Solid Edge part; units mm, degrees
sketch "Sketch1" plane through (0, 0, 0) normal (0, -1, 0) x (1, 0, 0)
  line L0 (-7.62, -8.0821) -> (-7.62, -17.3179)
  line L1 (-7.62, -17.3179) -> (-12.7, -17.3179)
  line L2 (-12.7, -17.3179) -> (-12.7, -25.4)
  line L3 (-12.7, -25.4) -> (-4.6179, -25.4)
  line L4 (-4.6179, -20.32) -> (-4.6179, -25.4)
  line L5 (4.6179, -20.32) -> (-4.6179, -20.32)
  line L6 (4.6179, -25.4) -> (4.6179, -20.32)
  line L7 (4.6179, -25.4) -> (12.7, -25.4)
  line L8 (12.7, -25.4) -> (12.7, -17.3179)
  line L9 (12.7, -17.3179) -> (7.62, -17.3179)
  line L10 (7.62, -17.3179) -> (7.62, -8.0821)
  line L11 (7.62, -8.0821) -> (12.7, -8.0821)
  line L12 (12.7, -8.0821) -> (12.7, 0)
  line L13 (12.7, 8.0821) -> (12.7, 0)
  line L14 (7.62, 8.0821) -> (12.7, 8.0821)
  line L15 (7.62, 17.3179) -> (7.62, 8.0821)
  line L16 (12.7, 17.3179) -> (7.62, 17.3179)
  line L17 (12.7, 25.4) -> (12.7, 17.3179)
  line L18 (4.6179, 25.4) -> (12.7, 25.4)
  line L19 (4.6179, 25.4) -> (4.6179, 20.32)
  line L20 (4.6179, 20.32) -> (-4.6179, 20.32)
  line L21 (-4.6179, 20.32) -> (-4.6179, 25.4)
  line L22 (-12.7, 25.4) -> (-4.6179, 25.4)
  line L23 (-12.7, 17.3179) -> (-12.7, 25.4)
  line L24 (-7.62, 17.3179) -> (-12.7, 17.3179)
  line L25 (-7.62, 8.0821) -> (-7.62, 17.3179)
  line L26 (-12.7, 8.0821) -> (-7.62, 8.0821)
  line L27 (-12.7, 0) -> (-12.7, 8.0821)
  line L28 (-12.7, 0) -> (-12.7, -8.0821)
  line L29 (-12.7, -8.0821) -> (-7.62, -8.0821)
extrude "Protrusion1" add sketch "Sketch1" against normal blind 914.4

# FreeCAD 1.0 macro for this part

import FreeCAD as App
import Part
import Sketcher

V = App.Vector
Q = App.Units.Quantity

doc = App.newDocument("Part")
params = doc.addObject("Spreadsheet::Sheet", "Params")
for row, (alias, value) in enumerate([
    ("sketch1_width", "0.2 in"),
    ("pad1_length", "36 in"),
], start=1):
    params.set(f"A{row}", alias)
    params.set(f"B{row}", "=" + value)
    params.setAlias(f"B{row}", alias)

body = doc.addObject("PartDesign::Body", "Body")

# Sketch on XZ plane
sketch1 = body.newObject("Sketcher::SketchObject", "Sketch")
sketch1.AttachmentSupport = (doc.getObject("XZ_Plane"), [""])
sketch1.MapMode = "FlatFace"
sketch1.addGeometry(Part.LineSegment(V(-13, -8, 0), V(-8, -8, 0)), False)
sketch1.addGeometry(Part.LineSegment(V(-8, -8, 0), V(-8, -17, 0)), False)
sketch1.addGeometry(Part.LineSegment(V(-8, -17, 0), V(-13, -17, 0)), False)
sketch1.addGeometry(Part.LineSegment(V(-13, -17, 0), V(-13, -25, 0)), False)
sketch1.addGeometry(Part.LineSegment(V(-13, -25, 0), V(-5, -25, 0)), False)
sketch1.addGeometry(Part.LineSegment(V(-5, -25, 0), V(-5, -20, 0)), False)
sketch1.addGeometry(Part.LineSegment(V(-5, -20, 0), V(5, -20, 0)), False)
sketch1.addGeometry(Part.LineSegment(V(5, -20, 0), V(5, -25, 0)), False)
sketch1.addGeometry(Part.LineSegment(V(5, -25, 0), V(13, -25, 0)), False)
sketch1.addGeometry(Part.LineSegment(V(13, -25, 0), V(13, -17, 0)), False)
sketch1.addGeometry(Part.LineSegment(V(13, -17, 0), V(8, -17, 0)), False)
sketch1.addGeometry(Part.LineSegment(V(8, -17, 0), V(8, -8, 0)), False)
sketch1.addGeometry(Part.LineSegment(V(8, -8, 0), V(13, -8, 0)), False)
sketch1.addGeometry(Part.LineSegment(V(13, -8, 0), V(13, 8, 0)), False)
sketch1.addGeometry(Part.LineSegment(V(13, 8, 0), V(8, 8, 0)), False)
sketch1.addGeometry(Part.LineSegment(V(8, 8, 0), V(8, 17, 0)), False)
sketch1.addGeometry(Part.LineSegment(V(8, 17, 0), V(13, 17, 0)), False)
sketch1.addGeometry(Part.LineSegment(V(13, 17, 0), V(13, 25, 0)), False)
sketch1.addGeometry(Part.LineSegment(V(13, 25, 0), V(5, 25, 0)), False)
sketch1.addGeometry(Part.LineSegment(V(5, 25, 0), V(5, 20, 0)), False)
sketch1.addGeometry(Part.LineSegment(V(5, 20, 0), V(-5, 20, 0)), False)
sketch1.addGeometry(Part.LineSegment(V(-5, 20, 0), V(-5, 25, 0)), False)
sketch1.addGeometry(Part.LineSegment(V(-5, 25, 0), V(-13, 25, 0)), False)
sketch1.addGeometry(Part.LineSegment(V(-13, 25, 0), V(-13, 17, 0)), False)
sketch1.addGeometry(Part.LineSegment(V(-13, 17, 0), V(-8, 17, 0)), False)
sketch1.addGeometry(Part.LineSegment(V(-8, 17, 0), V(-8, 8, 0)), False)
sketch1.addGeometry(Part.LineSegment(V(-8, 8, 0), V(-13, 8, 0)), False)
sketch1.addGeometry(Part.LineSegment(V(-13, 8, 0), V(-13, -8, 0)), False)
sketch1.addConstraint(Sketcher.Constraint("Coincident", 0, 2, 1, 1))
sketch1.addConstraint(Sketcher.Constraint("Coincident", 1, 2, 2, 1))
sketch1.addConstraint(Sketcher.Constraint("Coincident", 2, 2, 3, 1))
sketch1.addConstraint(Sketcher.Constraint("Coincident", 3, 2, 4, 1))
sketch1.addConstraint(Sketcher.Constraint("Coincident", 4, 2, 5, 1))
sketch1.addConstraint(Sketcher.Constraint("Coincident", 5, 2, 6, 1))
sketch1.addConstraint(Sketcher.Constraint("Coincident", 6, 2, 7, 1))
sketch1.addConstraint(Sketcher.Constraint("Coincident", 7, 2, 8, 1))
sketch1.addConstraint(Sketcher.Constraint("Coincident", 8, 2, 9, 1))
sketch1.addConstraint(Sketcher.Constraint("Coincident", 9, 2, 10, 1))
sketch1.addConstraint(Sketcher.Constraint("Coincident", 10, 2, 11, 1))
sketch1.addConstraint(Sketcher.Constraint("Coincident", 11, 2, 12, 1))
sketch1.addConstraint(Sketcher.Constraint("Coincident", 12, 2, 13, 1))
sketch1.addConstraint(Sketcher.Constraint("Coincident", 13, 2, 14, 1))
sketch1.addConstraint(Sketcher.Constraint("Coincident", 14, 2, 15, 1))
sketch1.addConstraint(Sketcher.Constraint("Coincident", 15, 2, 16, 1))
sketch1.addConstraint(Sketcher.Constraint("Coincident", 16, 2, 17, 1))
sketch1.addConstraint(Sketcher.Constraint("Coincident", 17, 2, 18, 1))
sketch1.addConstraint(Sketcher.Constraint("Coincident", 18, 2, 19, 1))
sketch1.addConstraint(Sketcher.Constraint("Coincident", 19, 2, 20, 1))
sketch1.addConstraint(Sketcher.Constraint("Coincident", 20, 2, 21, 1))
sketch1.addConstraint(Sketcher.Constraint("Coincident", 21, 2, 22, 1))
sketch1.addConstraint(Sketcher.Constraint("Coincident", 22, 2, 23, 1))
sketch1.addConstraint(Sketcher.Constraint("Coincident", 23, 2, 24, 1))
sketch1.addConstraint(Sketcher.Constraint("Coincident", 24, 2, 25, 1))
sketch1.addConstraint(Sketcher.Constraint("Coincident", 25, 2, 26, 1))
sketch1.addConstraint(Sketcher.Constraint("Coincident", 26, 2, 27, 1))
sketch1.addConstraint(Sketcher.Constraint("Coincident", 27, 2, 0, 1))
sketch1.addConstraint(Sketcher.Constraint("Horizontal", 0))
sketch1.addConstraint(Sketcher.Constraint("Vertical", 1))
sketch1.addConstraint(Sketcher.Constraint("Horizontal", 2))
sketch1.addConstraint(Sketcher.Constraint("Vertical", 3))
sketch1.addConstraint(Sketcher.Constraint("Horizontal", 4))
sketch1.addConstraint(Sketcher.Constraint("Vertical", 5))
sketch1.addConstraint(Sketcher.Constraint("Horizontal", 6))
sketch1.addConstraint(Sketcher.Constraint("Vertical", 7))
sketch1.addConstraint(Sketcher.Constraint("Horizontal", 8))
sketch1.addConstraint(Sketcher.Constraint("Vertical", 9))
sketch1.addConstraint(Sketcher.Constraint("Horizontal", 10))
sketch1.addConstraint(Sketcher.Constraint("Vertical", 11))
sketch1.addConstraint(Sketcher.Constraint("Horizontal", 12))
sketch1.addConstraint(Sketcher.Constraint("Vertical", 13))
sketch1.addConstraint(Sketcher.Constraint("Horizontal", 14))
sketch1.addConstraint(Sketcher.Constraint("Vertical", 15))
sketch1.addConstraint(Sketcher.Constraint("Horizontal", 16))
sketch1.addConstraint(Sketcher.Constraint("Vertical", 17))
sketch1.addConstraint(Sketcher.Constraint("Horizontal", 18))
sketch1.addConstraint(Sketcher.Constraint("Vertical", 19))
sketch1.addConstraint(Sketcher.Constraint("Horizontal", 20))
sketch1.addConstraint(Sketcher.Constraint("Vertical", 21))
sketch1.addConstraint(Sketcher.Constraint("Horizontal", 22))
sketch1.addConstraint(Sketcher.Constraint("Vertical", 23))
sketch1.addConstraint(Sketcher.Constraint("Horizontal", 24))
sketch1.addConstraint(Sketcher.Constraint("Vertical", 25))
sketch1.addConstraint(Sketcher.Constraint("Horizontal", 26))
sketch1.addConstraint(Sketcher.Constraint("Vertical", 27))
sketch1.addConstraint(Sketcher.Constraint("Symmetric", 0, 2, 14, 2, -1, 1))
sketch1.addConstraint(Sketcher.Constraint("Symmetric", 2, 2, 16, 2, -1, 1))
sketch1.addConstraint(Sketcher.Constraint("Symmetric", 4, 2, 18, 2, -1, 1))
sketch1.addConstraint(Sketcher.Constraint("Symmetric", 6, 2, 20, 2, -1, 1))
sketch1.addConstraint(Sketcher.Constraint("Symmetric", 8, 2, 22, 2, -1, 1))
sketch1.addConstraint(Sketcher.Constraint("Symmetric", 10, 2, 24, 2, -1, 1))
sketch1.addConstraint(Sketcher.Constraint("Symmetric", 12, 2, 26, 2, -1, 1))
sketch1.addConstraint(Sketcher.Constraint("Symmetric", 4, 2, 7, 2, -2))
sketch1.addConstraint(Sketcher.Constraint("Symmetric", 2, 2, 9, 2, -2))
sketch1.addConstraint(Sketcher.Constraint("Symmetric", 0, 2, 11, 2, -2))
sketch1.addConstraint(Sketcher.Constraint("Vertical", 9, 2, 12, 2))
sketch1.addConstraint(Sketcher.Constraint("Equal", 20, 1))
sketch1.addConstraint(Sketcher.Constraint("Equal", 22, 3))
sketch1.addConstraint(Sketcher.Constraint("Equal", 26, 5))
sketch1.addConstraint(Sketcher.Constraint("DistanceX", 0, 1, 0, 2, Q("0.2 in")))
sketch1.addConstraint(Sketcher.Constraint("DistanceY", 3, 2, -1, 1, Q("1 in")))
sketch1.addConstraint(Sketcher.Constraint("DistanceY", 9, 2, 13, 2, Q("1 in")))
sketch1.addConstraint(Sketcher.Constraint("DistanceX", 4, 1, 4, 2, Q("0.3182 in")))
sketch1.setExpression("Constraints[70]", "Params.sketch1_width")
pad1 = body.newObject("PartDesign::Pad", "Pad")
pad1.Profile = sketch1
pad1.setExpression("Length", "Params.pad1_length")
pad1.Reversed = True

doc.recompute()
